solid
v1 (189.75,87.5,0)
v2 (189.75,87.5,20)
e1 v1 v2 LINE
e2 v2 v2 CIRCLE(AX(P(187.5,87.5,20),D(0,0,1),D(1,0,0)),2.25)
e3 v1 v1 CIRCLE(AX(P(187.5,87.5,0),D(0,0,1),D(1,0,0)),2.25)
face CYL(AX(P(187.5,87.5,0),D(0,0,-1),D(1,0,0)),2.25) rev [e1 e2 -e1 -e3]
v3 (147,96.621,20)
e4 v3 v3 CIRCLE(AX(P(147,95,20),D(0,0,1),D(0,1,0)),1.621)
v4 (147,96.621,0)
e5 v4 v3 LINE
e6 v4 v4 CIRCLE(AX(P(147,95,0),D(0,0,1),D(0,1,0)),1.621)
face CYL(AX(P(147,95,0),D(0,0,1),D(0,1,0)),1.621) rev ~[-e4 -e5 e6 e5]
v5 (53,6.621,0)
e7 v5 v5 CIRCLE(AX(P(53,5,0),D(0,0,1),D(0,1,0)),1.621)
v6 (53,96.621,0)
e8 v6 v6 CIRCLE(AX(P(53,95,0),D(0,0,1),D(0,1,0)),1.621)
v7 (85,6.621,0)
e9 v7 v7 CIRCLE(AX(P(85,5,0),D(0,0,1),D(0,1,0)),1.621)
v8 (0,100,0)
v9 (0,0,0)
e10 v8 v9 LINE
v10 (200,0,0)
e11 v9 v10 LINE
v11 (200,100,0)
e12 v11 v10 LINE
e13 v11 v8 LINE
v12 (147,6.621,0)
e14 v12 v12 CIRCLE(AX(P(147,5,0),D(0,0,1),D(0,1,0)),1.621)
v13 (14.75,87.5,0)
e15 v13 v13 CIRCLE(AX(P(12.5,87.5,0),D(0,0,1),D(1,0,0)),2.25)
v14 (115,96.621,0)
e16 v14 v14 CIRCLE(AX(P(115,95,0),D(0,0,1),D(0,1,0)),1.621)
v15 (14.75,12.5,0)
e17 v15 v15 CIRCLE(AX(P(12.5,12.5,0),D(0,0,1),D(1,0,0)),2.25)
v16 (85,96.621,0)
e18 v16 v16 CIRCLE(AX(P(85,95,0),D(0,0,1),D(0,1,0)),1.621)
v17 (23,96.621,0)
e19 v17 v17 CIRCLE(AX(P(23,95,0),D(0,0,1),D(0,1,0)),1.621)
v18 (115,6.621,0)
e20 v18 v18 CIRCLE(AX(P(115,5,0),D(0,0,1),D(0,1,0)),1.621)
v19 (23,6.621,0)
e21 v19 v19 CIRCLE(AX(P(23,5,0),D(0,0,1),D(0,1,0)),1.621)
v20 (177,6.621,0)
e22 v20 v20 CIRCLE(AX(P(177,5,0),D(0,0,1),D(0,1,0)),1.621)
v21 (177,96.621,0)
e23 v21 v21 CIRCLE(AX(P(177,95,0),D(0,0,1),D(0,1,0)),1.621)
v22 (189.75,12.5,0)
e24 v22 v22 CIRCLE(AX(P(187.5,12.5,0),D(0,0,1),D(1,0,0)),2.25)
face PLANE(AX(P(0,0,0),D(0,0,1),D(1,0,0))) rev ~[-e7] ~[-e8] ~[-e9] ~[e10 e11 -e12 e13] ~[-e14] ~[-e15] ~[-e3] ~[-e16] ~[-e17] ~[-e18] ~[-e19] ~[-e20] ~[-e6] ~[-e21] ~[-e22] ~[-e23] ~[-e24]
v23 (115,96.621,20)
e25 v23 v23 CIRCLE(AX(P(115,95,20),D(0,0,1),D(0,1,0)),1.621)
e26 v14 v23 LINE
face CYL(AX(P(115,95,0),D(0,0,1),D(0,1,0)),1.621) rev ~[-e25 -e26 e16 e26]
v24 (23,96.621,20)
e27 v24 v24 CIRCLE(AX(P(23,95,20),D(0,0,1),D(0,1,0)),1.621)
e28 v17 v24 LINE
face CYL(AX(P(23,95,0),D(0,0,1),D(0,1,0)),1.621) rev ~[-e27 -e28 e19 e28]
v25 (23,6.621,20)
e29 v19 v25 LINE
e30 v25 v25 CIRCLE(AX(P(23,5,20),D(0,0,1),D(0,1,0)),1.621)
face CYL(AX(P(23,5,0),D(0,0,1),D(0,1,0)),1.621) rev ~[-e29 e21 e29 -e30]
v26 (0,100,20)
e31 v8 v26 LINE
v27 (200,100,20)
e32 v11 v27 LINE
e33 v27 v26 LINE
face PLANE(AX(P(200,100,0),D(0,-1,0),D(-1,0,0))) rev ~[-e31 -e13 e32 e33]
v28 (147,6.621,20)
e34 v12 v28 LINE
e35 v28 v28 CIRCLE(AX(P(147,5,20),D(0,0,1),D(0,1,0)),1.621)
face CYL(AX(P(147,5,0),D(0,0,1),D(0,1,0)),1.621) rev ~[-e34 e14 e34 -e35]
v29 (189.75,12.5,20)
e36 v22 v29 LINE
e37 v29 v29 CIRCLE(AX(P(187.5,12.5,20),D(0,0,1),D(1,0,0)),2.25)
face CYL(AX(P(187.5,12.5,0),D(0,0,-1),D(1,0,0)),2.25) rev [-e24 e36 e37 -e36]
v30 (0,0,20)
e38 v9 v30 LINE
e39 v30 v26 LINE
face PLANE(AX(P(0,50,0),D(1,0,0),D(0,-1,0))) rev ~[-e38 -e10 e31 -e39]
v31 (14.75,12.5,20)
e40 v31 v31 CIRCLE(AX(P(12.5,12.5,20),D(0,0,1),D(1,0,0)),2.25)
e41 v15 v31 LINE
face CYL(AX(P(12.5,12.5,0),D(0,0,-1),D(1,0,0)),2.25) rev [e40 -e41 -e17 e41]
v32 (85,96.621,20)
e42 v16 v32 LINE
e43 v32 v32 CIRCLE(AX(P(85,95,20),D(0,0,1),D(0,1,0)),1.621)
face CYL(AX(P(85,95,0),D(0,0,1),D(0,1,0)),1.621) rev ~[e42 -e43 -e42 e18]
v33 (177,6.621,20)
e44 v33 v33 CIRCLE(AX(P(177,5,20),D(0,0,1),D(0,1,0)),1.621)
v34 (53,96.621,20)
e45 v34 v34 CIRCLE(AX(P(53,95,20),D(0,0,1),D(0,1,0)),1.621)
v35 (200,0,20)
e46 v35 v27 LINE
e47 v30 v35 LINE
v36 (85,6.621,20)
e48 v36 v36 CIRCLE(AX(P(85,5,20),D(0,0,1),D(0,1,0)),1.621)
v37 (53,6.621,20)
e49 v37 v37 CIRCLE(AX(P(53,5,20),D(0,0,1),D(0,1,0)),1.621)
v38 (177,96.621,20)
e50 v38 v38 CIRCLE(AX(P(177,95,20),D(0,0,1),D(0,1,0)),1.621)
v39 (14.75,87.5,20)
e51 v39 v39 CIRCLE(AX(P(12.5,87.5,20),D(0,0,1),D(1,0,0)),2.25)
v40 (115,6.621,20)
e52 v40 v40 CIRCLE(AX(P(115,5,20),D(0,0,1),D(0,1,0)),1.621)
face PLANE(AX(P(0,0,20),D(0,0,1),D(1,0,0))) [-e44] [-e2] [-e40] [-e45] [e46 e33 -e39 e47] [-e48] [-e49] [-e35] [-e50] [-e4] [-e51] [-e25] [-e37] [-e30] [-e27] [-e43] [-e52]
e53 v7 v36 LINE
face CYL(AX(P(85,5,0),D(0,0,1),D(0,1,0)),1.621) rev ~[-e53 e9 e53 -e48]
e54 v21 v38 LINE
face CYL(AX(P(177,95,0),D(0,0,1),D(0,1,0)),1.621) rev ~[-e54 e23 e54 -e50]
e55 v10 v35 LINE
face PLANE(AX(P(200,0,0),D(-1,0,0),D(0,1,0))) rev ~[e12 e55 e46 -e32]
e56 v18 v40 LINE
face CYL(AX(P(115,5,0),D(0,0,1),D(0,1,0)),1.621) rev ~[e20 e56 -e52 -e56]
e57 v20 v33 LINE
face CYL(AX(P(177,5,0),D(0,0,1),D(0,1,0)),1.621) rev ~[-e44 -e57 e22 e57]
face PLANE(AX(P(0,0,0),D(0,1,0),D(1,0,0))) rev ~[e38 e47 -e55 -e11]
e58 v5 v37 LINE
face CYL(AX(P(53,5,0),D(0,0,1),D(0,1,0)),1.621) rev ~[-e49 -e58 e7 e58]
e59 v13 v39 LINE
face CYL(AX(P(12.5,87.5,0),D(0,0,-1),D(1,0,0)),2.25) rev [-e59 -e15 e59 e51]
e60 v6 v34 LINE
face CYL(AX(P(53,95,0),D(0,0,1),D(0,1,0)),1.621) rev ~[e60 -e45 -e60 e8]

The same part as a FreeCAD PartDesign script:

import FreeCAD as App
import Part
import Sketcher

V = App.Vector


def add_polygon(sketch, points):
    """Adds a closed chain of lines whose ends are joined by coincident constraints."""
    first, n = sketch.GeometryCount, len(points)
    for a, b in zip(points, points[1:] + points[:1]):
        sketch.addGeometry(Part.LineSegment(App.Vector(*a, 0), App.Vector(*b, 0)), False)
    for i in range(n):
        sketch.addConstraint(Sketcher.Constraint("Coincident", first + i, 2, first + (i + 1) % n, 1))

doc = App.newDocument("Part")
body = doc.addObject("PartDesign::Body", "Body")

# Sketch on XY plane
sketch1 = body.newObject("Sketcher::SketchObject", "Sketch")
sketch1.AttachmentSupport = (doc.getObject("XY_Plane"), [""])
sketch1.MapMode = "FlatFace"
add_polygon(sketch1, [(0, 0), (200, 0), (200, 100), (0, 100)])  # lines 0-3
sketch1.addGeometry(Part.Circle(V(12.5, 12.5, 0), V(0, 0, 1), 2.2), False)  # 4
sketch1.addGeometry(Part.Circle(V(187.5, 12.5, 0), V(0, 0, 1), 2.2), False)  # 5
sketch1.addGeometry(Part.Circle(V(12.5, 87.5, 0), V(0, 0, 1), 2.2), False)  # 6
sketch1.addGeometry(Part.Circle(V(187.5, 87.5, 0), V(0, 0, 1), 2.2), False)  # 7
sketch1.addConstraint(Sketcher.Constraint("Horizontal", 0))
sketch1.addConstraint(Sketcher.Constraint("Vertical", 1))
sketch1.addConstraint(Sketcher.Constraint("Horizontal", 2))
sketch1.addConstraint(Sketcher.Constraint("Vertical", 3))
sketch1.addConstraint(Sketcher.Constraint("Coincident", 3, 2, -1, 1))
sketch1.addConstraint(Sketcher.Constraint("Equal", 4, 5))
sketch1.addConstraint(Sketcher.Constraint("Equal", 5, 6))
sketch1.addConstraint(Sketcher.Constraint("Equal", 6, 7))
sketch1.addConstraint(Sketcher.Constraint("Horizontal", 4, 3, 5, 3))
sketch1.addConstraint(Sketcher.Constraint("Horizontal", 6, 3, 7, 3))
sketch1.addConstraint(Sketcher.Constraint("Vertical", 4, 3, 6, 3))
sketch1.addConstraint(Sketcher.Constraint("Vertical", 5, 3, 7, 3))
sketch1.addConstraint(Sketcher.Constraint("Diameter", 4, 4.5))
sketch1.addConstraint(Sketcher.Constraint("DistanceX", 0, 1, 0, 2, 200.0))
sketch1.addConstraint(Sketcher.Constraint("DistanceY", 1, 1, 1, 2, 100.0))
sketch1.addConstraint(Sketcher.Constraint("DistanceX", 4, 3, 5, 3, 175.0))
sketch1.addConstraint(Sketcher.Constraint("DistanceY", 4, 3, 6, 3, 75.0))
sketch1.addConstraint(Sketcher.Constraint("DistanceX", -1, 1, 4, 3, 12.5))
sketch1.addConstraint(Sketcher.Constraint("DistanceY", -1, 1, 4, 3, 12.5))
pad1 = body.newObject("PartDesign::Pad", "Pad")
pad1.Profile = sketch1
pad1.Length = 20

# Sketch on XY plane
sketch2 = body.newObject("Sketcher::SketchObject", "Sketch001")
sketch2.AttachmentSupport = (doc.getObject("XY_Plane"), [""])
sketch2.MapMode = "FlatFace"
sketch2.addGeometry(Part.Circle(V(23, 5, 0), V(0, 0, 1), 1.6), False)
sketch2.addGeometry(Part.Circle(V(23, 95, 0), V(0, 0, 1), 1.6), False)
sketch2.addGeometry(Part.Circle(V(53, 5, 0), V(0, 0, 1), 1.6), False)
sketch2.addGeometry(Part.Circle(V(53, 95, 0), V(0, 0, 1), 1.6), False)
sketch2.addGeometry(Part.Circle(V(85, 95, 0), V(0, 0, 1), 1.6), False)
sketch2.addGeometry(Part.Circle(V(85, 5, 0), V(0, 0, 1), 1.6), False)
sketch2.addGeometry(Part.Circle(V(115, 95, 0), V(0, 0, 1), 1.6), False)
sketch2.addGeometry(Part.Circle(V(115, 5, 0), V(0, 0, 1), 1.6), False)
sketch2.addGeometry(Part.Circle(V(147, 95, 0), V(0, 0, 1), 1.6), False)
sketch2.addGeometry(Part.Circle(V(147, 5, 0), V(0, 0, 1), 1.6), False)
sketch2.addGeometry(Part.Circle(V(177, 95, 0), V(0, 0, 1), 1.6), False)
sketch2.addGeometry(Part.Circle(V(177, 5, 0), V(0, 0, 1), 1.6), False)
sketch2.addConstraint(Sketcher.Constraint("Equal", 0, 1))
sketch2.addConstraint(Sketcher.Constraint("Equal", 1, 2))
sketch2.addConstraint(Sketcher.Constraint("Equal", 2, 3))
sketch2.addConstraint(Sketcher.Constraint("Equal", 3, 4))
sketch2.addConstraint(Sketcher.Constraint("Equal", 4, 5))
sketch2.addConstraint(Sketcher.Constraint("Equal", 5, 6))
sketch2.addConstraint(Sketcher.Constraint("Equal", 6, 7))
sketch2.addConstraint(Sketcher.Constraint("Equal", 7, 8))
sketch2.addConstraint(Sketcher.Constraint("Equal", 8, 9))
sketch2.addConstraint(Sketcher.Constraint("Equal", 9, 10))
sketch2.addConstraint(Sketcher.Constraint("Equal", 10, 11))
sketch2.addConstraint(Sketcher.Constraint("Horizontal", 0, 3, 2, 3))
sketch2.addConstraint(Sketcher.Constraint("Horizontal", 1, 3, 3, 3))
sketch2.addConstraint(Sketcher.Constraint("Horizontal", 3, 3, 4, 3))
sketch2.addConstraint(Sketcher.Constraint("Horizontal", 2, 3, 5, 3))
sketch2.addConstraint(Sketcher.Constraint("Horizontal", 4, 3, 6, 3))
sketch2.addConstraint(Sketcher.Constraint("Horizontal", 5, 3, 7, 3))
sketch2.addConstraint(Sketcher.Constraint("Horizontal", 6, 3, 8, 3))
sketch2.addConstraint(Sketcher.Constraint("Horizontal", 7, 3, 9, 3))
sketch2.addConstraint(Sketcher.Constraint("Horizontal", 8, 3, 10, 3))
sketch2.addConstraint(Sketcher.Constraint("Horizontal", 9, 3, 11, 3))
sketch2.addConstraint(Sketcher.Constraint("Vertical", 0, 3, 1, 3))
sketch2.addConstraint(Sketcher.Constraint("Vertical", 2, 3, 3, 3))
sketch2.addConstraint(Sketcher.Constraint("Vertical", 4, 3, 5, 3))
sketch2.addConstraint(Sketcher.Constraint("Vertical", 6, 3, 7, 3))
sketch2.addConstraint(Sketcher.Constraint("Vertical", 8, 3, 9, 3))
sketch2.addConstraint(Sketcher.Constraint("Vertical", 10, 3, 11, 3))
sketch2.addConstraint(Sketcher.Constraint("Diameter", 0, 3.242))
sketch2.addConstraint(Sketcher.Constraint("DistanceX", -1, 1, 0, 3, 23.0))
sketch2.addConstraint(Sketcher.Constraint("DistanceY", -1, 1, 0, 3, 5.0))
sketch2.addConstraint(Sketcher.Constraint("DistanceY", -1, 1, 1, 3, 95.0))
sketch2.addConstraint(Sketcher.Constraint("DistanceX", -1, 1, 2, 3, 53.0))
sketch2.addConstraint(Sketcher.Constraint("DistanceX", -1, 1, 4, 3, 85.0))
sketch2.addConstraint(Sketcher.Constraint("DistanceX", -1, 1, 6, 3, 115.0))
sketch2.addConstraint(Sketcher.Constraint("DistanceX", -1, 1, 8, 3, 147.0))
sketch2.addConstraint(Sketcher.Constraint("DistanceX", -1, 1, 10, 3, 177.0))
doc.recompute()
hole = body.newObject("PartDesign::Hole", "Hole")
hole.Profile = sketch2
hole.ThreadType = "None"
hole.Diameter = 3.242
hole.DepthType = "ThroughAll"
hole.Reversed = True

doc.recompute()
